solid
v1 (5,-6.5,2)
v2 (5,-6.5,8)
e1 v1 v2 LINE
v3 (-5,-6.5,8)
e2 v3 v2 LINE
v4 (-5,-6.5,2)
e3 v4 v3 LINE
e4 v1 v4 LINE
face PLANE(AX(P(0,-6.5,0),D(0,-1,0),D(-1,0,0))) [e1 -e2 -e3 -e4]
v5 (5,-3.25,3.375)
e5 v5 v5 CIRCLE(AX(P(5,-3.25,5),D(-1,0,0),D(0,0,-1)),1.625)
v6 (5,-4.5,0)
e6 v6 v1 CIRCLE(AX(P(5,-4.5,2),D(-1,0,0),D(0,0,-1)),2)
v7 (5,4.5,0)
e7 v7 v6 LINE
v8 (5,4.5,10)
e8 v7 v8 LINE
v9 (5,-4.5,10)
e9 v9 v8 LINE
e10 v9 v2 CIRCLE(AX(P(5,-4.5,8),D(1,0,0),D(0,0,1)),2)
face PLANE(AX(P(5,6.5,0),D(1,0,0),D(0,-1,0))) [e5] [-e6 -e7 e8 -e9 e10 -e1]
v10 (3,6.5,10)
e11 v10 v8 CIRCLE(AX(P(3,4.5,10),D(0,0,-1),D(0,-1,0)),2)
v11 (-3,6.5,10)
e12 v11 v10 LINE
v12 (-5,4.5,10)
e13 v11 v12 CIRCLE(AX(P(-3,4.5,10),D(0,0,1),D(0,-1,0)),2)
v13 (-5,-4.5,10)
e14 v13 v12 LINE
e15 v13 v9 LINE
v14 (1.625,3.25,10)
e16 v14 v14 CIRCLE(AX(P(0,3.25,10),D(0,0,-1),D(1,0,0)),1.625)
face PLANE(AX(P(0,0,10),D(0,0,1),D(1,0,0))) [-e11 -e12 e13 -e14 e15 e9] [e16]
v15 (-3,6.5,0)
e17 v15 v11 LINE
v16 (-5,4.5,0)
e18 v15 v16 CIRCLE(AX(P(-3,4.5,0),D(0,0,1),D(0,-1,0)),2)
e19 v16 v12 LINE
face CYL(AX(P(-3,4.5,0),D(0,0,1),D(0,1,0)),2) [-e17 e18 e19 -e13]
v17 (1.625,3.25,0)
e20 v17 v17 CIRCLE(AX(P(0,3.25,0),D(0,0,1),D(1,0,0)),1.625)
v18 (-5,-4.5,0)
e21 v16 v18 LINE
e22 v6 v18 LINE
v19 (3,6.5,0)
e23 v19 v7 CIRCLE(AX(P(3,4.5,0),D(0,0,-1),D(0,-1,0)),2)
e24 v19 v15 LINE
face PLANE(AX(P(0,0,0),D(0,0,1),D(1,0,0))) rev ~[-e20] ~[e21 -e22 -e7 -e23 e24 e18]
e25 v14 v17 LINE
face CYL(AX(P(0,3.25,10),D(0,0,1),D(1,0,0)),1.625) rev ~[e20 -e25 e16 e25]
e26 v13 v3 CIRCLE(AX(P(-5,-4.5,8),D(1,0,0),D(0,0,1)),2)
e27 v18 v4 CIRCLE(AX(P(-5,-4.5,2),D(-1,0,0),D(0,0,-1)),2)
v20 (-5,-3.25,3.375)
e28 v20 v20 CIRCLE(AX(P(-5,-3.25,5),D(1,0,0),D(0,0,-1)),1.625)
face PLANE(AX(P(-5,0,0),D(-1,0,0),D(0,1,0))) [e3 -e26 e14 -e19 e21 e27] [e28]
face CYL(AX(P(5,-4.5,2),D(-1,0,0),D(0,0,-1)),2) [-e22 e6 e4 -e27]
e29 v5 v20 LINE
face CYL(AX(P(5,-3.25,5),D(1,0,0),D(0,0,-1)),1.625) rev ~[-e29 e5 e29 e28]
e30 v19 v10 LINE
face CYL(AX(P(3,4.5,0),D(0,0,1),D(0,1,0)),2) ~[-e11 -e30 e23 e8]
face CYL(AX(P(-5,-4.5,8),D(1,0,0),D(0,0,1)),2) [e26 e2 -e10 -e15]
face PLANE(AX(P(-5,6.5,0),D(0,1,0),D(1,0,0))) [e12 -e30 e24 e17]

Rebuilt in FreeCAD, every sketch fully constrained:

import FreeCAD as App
import Part
import Sketcher

V = App.Vector


def edges_at(feature, points):
    """Names of the edges that pass closest to the given points."""
    edges = feature.Shape.Edges
    near = lambda p: min(range(len(edges)), key=lambda i: edges[i].distToShape(Part.Vertex(*p))[0])
    return sorted({f"Edge{near(p) + 1}" for p in points})


def add_polygon(sketch, points):
    """Adds a closed chain of lines whose ends are joined by coincident constraints."""
    first, n = sketch.GeometryCount, len(points)
    for a, b in zip(points, points[1:] + points[:1]):
        sketch.addGeometry(Part.LineSegment(App.Vector(*a, 0), App.Vector(*b, 0)), False)
    for i in range(n):
        sketch.addConstraint(Sketcher.Constraint("Coincident", first + i, 2, first + (i + 1) % n, 1))

doc = App.newDocument("Part")
body = doc.addObject("PartDesign::Body", "Body")

# Sketch on XY plane
sketch1 = body.newObject("Sketcher::SketchObject", "Sketch")
sketch1.AttachmentSupport = (doc.getObject("XY_Plane"), [""])
sketch1.MapMode = "FlatFace"
add_polygon(sketch1, [(-5, 6.5), (-5, -6.5), (5, -6.5), (5, 6.5)])  # lines 0-3
sketch1.addConstraint([
    Sketcher.Constraint("Vertical", 0),
    Sketcher.Constraint("Horizontal", 1),
    Sketcher.Constraint("Vertical", 2),
    Sketcher.Constraint("Horizontal", 3),
    Sketcher.Constraint("Symmetric", 0, 2, 2, 2, -1, 1),
    Sketcher.Constraint("DistanceX", 1, 1, 1, 2, 10.0),
    Sketcher.Constraint("DistanceY", 0, 2, 0, 1, 13.0),
])
pad1 = body.newObject("PartDesign::Pad", "Pad")
pad1.Profile = sketch1
pad1.Length = 10

# Sketch on YZ plane
sketch2 = body.newObject("Sketcher::SketchObject", "Sketch001")
sketch2.AttachmentSupport = (doc.getObject("YZ_Plane"), [""])
sketch2.MapMode = "FlatFace"
sketch2.AttachmentOffset = App.Placement(V(0, 0, 5), App.Rotation())
sketch2.addGeometry(Part.Circle(V(-3.25, 5, 0), V(0, 0, 1), 1.625), False)
sketch2.addConstraint([
    Sketcher.Constraint("Diameter", 0, 3.25),
    Sketcher.Constraint("DistanceX", 0, 3, -1, 1, 3.25),
    Sketcher.Constraint("DistanceY", -1, 1, 0, 3, 5.0),
])
pocket1 = body.newObject("PartDesign::Pocket", "Pocket")
pocket1.Profile = sketch2
pocket1.Type = "ThroughAll"

# Sketch on XY plane
sketch3 = body.newObject("Sketcher::SketchObject", "Sketch002")
sketch3.AttachmentSupport = (doc.getObject("XY_Plane"), [""])
sketch3.MapMode = "FlatFace"
sketch3.AttachmentOffset = App.Placement(V(0, 0, 10), App.Rotation())
sketch3.addGeometry(Part.Circle(V(0, 3.25, 0), V(0, 0, 1), 1.625), False)
sketch3.addConstraint([
    Sketcher.Constraint("PointOnObject", 0, 3, -2),
    Sketcher.Constraint("Diameter", 0, 3.25),
    Sketcher.Constraint("DistanceY", -1, 1, 0, 3, 3.25),
])
pocket2 = body.newObject("PartDesign::Pocket", "Pocket001")
pocket2.Profile = sketch3
pocket2.Type = "ThroughAll"
doc.recompute()

fillet = body.newObject("PartDesign::Fillet", "Fillet")
fillet.Base = (pocket2, edges_at(pocket2, [
    (5, 6.5, 5),
    (-5, 6.5, 5),
    (0, -6.5, 10),
    (0, -6.5, 0),
]))
fillet.Radius = 2

doc.recompute()
